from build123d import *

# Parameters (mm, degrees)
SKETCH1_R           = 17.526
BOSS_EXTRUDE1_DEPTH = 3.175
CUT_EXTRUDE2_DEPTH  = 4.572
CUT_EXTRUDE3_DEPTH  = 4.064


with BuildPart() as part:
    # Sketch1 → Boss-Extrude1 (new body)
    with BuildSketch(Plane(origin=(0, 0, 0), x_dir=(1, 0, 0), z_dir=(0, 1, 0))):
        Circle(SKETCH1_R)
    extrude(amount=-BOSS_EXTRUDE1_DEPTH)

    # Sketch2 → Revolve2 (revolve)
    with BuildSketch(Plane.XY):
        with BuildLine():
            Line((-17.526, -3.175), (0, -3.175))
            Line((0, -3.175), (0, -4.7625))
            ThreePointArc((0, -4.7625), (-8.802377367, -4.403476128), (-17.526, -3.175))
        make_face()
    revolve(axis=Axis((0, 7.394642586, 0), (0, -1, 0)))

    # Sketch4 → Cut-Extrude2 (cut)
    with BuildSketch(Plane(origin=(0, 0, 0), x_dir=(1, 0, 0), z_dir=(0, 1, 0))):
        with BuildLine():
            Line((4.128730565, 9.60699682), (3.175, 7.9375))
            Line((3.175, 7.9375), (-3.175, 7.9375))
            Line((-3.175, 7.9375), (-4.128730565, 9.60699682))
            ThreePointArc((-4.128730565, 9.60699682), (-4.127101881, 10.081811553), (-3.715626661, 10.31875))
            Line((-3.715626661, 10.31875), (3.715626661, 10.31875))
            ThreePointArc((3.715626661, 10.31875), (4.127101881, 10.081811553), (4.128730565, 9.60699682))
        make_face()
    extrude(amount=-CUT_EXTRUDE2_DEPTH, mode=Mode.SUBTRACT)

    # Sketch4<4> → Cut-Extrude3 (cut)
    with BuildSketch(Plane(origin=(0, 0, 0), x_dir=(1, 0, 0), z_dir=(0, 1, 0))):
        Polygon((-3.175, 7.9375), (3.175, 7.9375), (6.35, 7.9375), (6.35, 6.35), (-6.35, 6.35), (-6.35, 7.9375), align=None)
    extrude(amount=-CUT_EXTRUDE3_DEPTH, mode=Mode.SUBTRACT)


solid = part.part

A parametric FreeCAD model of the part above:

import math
import FreeCAD as App
import Part
import Sketcher
from FreeCAD import Vector
Q = App.Units.Quantity


def add_polygon(sketch, points):
    """Adds a closed chain of lines whose ends are joined by coincident constraints."""
    first, n = sketch.GeometryCount, len(points)
    for a, b in zip(points, points[1:] + points[:1]):
        sketch.addGeometry(Part.LineSegment(App.Vector(*a, 0), App.Vector(*b, 0)), False)
    for i in range(n):
        sketch.addConstraint(Sketcher.Constraint("Coincident", first + i, 2, first + (i + 1) % n, 1))

doc = App.newDocument("Part")
body = doc.addObject("PartDesign::Body", "Body")

# Sketch on XZ plane
sketch1 = body.newObject("Sketcher::SketchObject", "Sketch")
sketch1.AttachmentSupport = (doc.getObject("XZ_Plane"), [""])
sketch1.MapMode = "FlatFace"
sketch1.addGeometry(Part.Circle(Vector(0, 0, 0), Vector(0, 0, 1), 17.526), False)
sketch1.addConstraint([
    Sketcher.Constraint("Coincident", 0, 3, -1, 1),
    Sketcher.Constraint("Diameter", 0, Q("1.38 in")),
])
pad1 = body.newObject("PartDesign::Pad", "Pad")
pad1.Profile = sketch1
pad1.Length = Q("0.125 in")

# Sketch on XY plane
sketch2 = body.newObject("Sketcher::SketchObject", "Sketch001")
sketch2.AttachmentSupport = (doc.getObject("XY_Plane"), [""])
sketch2.MapMode = "FlatFace"
sketch2.addGeometry([
    Part.LineSegment(Vector(0, -3.175, 0), Vector(-17.526, -3.175, 0)),
    Part.ArcOfCircle(Part.Circle(Vector(-0.782674, 84.134055, 0), Vector(0, 0, 1), 88.9), math.radians(-100.855859), math.radians(-89.495563)),
    Part.LineSegment(Vector(0, -4.7625, 0), Vector(0, -3.175, 0)),
], False)
sketch2.addConstraint([
    Sketcher.Constraint("Coincident", 0, 2, 1, 1),
    Sketcher.Constraint("Coincident", 1, 2, 2, 1),
    Sketcher.Constraint("Coincident", 2, 2, 0, 1),
    Sketcher.Constraint("Horizontal", 0),
    Sketcher.Constraint("Vertical", 2),
    Sketcher.Constraint("PointOnObject", 1, 2, -2),
    Sketcher.Constraint("Radius", 1, Q("3.5 in")),
    Sketcher.Constraint("DistanceX", 0, 2, 0, 1, Q("0.69 in")),
    Sketcher.Constraint("DistanceY", 2, 1, 2, 2, Q("0.0625 in")),
    Sketcher.Constraint("DistanceY", 0, 2, -1, 1, Q("0.125 in")),
])
revolution = body.newObject("PartDesign::Revolution", "Revolution")
revolution.Profile = sketch2
revolution.ReferenceAxis = (sketch2, ["V_Axis"])
revolution.Angle = 360

# Sketch on XZ plane
sketch3 = body.newObject("Sketcher::SketchObject", "Sketch002")
sketch3.AttachmentSupport = (doc.getObject("XZ_Plane"), [""])
sketch3.MapMode = "FlatFace"
sketch3.addGeometry([
    Part.LineSegment(Vector(3.175, -7.9375, 0), Vector(4.128731, -9.606997, 0)),  # 0
    Part.ArcOfCircle(Part.Circle(Vector(3.715627, -9.84299, 0), Vector(0, 0, 1), 0.47576), math.radians(-90), math.radians(29.737957)),  # 1
    Part.LineSegment(Vector(3.715627, -10.31875, 0), Vector(-3.715627, -10.31875, 0)),  # 2
    Part.ArcOfCircle(Part.Circle(Vector(-3.715627, -9.84299, 0), Vector(0, 0, 1), 0.47576), math.radians(150.262043), math.radians(270)),  # 3
    Part.LineSegment(Vector(-4.128731, -9.606997, 0), Vector(-3.175, -7.9375, 0)),  # 4
    Part.LineSegment(Vector(-3.175, -7.9375, 0), Vector(3.175, -7.9375, 0)),  # 5
], False)
sketch3.addConstraint([
    Sketcher.Constraint("Tangent", 0, 2, 1, 2),
    Sketcher.Constraint("Tangent", 1, 1, 2, 1),
    Sketcher.Constraint("Tangent", 2, 2, 3, 2),
    Sketcher.Constraint("Tangent", 3, 1, 4, 1),
    Sketcher.Constraint("Coincident", 4, 2, 5, 1),
    Sketcher.Constraint("Coincident", 5, 2, 0, 1),
    Sketcher.Constraint("Horizontal", 2),
    Sketcher.Constraint("Horizontal", 5),
    Sketcher.Constraint("Equal", 1, 3),
    Sketcher.Constraint("Symmetric", 0, 2, 3, 1, -2),
    Sketcher.Constraint("DistanceX", 5, 1, 5, 2, Q("0.25 in")),
    Sketcher.Constraint("DistanceY", 1, 1, -1, 1, Q("0.40625 in")),
    Sketcher.Constraint("DistanceY", 4, 2, -1, 1, Q("0.3125 in")),
    Sketcher.Constraint("Radius", 1, 0.47576),
    Sketcher.Constraint("DistanceX", 2, 2, 2, 1, 7.431253),
])
pocket1 = body.newObject("PartDesign::Pocket", "Pocket")
pocket1.Profile = sketch3
pocket1.Length = Q("0.18 in")
pocket1.Reversed = True

# Sketch on XZ plane
sketch4 = body.newObject("Sketcher::SketchObject", "Sketch003")
sketch4.AttachmentSupport = (doc.getObject("XZ_Plane"), [""])
sketch4.MapMode = "FlatFace"
add_polygon(sketch4, [(6.35, -7.9375), (-6.35, -7.9375), (-6.35, -6.35), (6.35, -6.35)])  # lines 0-3
sketch4.addConstraint([
    Sketcher.Constraint("Horizontal", 0),
    Sketcher.Constraint("Vertical", 1),
    Sketcher.Constraint("Horizontal", 2),
    Sketcher.Constraint("Vertical", 3),
    Sketcher.Constraint("DistanceX", 0, 2, 0, 1, Q("0.5 in")),
    Sketcher.Constraint("DistanceY", 1, 1, 1, 2, Q("0.0625 in")),
    Sketcher.Constraint("DistanceX", 0, 2, -1, 1, Q("0.25 in")),
    Sketcher.Constraint("DistanceY", 1, 2, -1, 1, Q("0.25 in")),
])
pocket2 = body.newObject("PartDesign::Pocket", "Pocket001")
pocket2.Profile = sketch4
pocket2.Length = Q("0.16 in")
pocket2.Reversed = True

doc.recompute()
